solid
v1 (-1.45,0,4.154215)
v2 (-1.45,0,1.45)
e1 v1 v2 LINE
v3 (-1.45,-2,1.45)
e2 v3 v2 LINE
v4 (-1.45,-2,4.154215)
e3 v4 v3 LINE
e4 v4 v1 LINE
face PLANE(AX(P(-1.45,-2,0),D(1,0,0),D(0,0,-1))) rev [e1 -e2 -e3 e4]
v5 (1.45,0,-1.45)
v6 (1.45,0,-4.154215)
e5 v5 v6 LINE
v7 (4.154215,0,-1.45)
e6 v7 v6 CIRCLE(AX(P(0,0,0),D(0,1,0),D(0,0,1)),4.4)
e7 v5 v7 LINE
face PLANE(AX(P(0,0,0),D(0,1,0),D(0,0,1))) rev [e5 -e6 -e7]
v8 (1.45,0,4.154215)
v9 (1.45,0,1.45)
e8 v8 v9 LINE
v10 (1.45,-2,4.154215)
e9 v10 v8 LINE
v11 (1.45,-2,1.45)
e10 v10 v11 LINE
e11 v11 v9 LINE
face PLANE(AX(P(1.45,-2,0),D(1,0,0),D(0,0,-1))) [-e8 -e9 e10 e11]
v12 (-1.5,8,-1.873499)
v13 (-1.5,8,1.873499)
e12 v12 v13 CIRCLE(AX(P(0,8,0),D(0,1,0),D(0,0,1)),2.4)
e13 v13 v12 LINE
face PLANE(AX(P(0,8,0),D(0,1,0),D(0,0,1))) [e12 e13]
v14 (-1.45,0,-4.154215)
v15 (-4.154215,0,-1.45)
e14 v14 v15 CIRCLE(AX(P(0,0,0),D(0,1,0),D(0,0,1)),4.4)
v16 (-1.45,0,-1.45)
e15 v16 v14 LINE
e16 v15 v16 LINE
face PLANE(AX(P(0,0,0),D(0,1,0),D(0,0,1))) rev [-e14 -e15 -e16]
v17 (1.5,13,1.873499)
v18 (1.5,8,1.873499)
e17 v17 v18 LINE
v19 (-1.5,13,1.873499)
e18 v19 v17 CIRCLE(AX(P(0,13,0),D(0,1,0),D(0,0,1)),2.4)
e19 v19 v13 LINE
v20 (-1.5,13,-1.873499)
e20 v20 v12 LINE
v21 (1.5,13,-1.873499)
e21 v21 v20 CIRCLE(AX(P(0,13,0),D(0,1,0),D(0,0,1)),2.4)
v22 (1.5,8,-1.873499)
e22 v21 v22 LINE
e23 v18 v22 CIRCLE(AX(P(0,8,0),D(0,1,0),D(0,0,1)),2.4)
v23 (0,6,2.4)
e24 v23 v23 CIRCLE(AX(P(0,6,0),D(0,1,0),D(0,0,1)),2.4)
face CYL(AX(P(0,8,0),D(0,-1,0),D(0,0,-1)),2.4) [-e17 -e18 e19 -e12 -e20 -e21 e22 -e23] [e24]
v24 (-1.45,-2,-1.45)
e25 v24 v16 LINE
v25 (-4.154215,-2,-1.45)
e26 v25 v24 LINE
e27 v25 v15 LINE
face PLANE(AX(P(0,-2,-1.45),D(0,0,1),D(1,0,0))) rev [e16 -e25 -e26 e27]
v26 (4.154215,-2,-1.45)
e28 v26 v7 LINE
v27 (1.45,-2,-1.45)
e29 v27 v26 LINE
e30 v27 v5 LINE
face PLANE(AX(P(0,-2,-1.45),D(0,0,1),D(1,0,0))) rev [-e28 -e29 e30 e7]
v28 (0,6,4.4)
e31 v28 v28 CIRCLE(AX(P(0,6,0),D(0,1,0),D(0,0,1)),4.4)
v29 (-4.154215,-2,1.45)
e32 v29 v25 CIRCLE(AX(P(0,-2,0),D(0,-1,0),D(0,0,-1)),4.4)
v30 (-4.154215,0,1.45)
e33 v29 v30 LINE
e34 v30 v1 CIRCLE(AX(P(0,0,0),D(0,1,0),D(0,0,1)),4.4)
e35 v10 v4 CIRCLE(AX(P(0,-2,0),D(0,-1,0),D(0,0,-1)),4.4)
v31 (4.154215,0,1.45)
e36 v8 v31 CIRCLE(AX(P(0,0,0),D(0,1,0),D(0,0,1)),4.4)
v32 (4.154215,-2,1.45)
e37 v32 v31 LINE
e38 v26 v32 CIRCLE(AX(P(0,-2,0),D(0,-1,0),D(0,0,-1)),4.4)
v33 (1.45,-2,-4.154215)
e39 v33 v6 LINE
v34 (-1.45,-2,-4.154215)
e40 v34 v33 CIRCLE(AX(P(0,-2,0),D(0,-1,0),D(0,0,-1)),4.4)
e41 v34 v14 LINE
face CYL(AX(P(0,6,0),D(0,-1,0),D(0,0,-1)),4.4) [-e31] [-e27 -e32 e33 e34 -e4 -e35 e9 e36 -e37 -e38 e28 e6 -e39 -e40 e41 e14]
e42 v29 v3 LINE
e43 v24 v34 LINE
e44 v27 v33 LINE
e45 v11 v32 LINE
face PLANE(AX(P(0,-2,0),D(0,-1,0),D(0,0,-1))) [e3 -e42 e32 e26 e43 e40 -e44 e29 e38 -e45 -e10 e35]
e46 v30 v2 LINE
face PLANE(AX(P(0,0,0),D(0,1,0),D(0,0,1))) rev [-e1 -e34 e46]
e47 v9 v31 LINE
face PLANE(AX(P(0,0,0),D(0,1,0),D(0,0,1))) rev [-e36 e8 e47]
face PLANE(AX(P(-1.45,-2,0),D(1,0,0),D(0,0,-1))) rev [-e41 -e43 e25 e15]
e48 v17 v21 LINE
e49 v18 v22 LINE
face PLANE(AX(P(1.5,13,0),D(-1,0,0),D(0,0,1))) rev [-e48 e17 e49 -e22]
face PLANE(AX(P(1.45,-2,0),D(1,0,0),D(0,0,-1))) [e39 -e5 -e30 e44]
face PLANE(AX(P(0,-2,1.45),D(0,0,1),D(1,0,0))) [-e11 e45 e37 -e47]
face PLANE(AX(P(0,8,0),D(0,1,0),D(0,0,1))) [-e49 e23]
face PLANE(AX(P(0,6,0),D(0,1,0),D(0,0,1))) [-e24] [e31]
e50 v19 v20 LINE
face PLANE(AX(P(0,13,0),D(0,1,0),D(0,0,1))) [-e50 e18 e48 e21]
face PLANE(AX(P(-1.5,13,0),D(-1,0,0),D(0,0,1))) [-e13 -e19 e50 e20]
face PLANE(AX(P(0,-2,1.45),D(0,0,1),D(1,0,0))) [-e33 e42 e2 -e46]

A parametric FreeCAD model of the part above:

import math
import FreeCAD as App
import Part
import Sketcher
Q = App.Units.Quantity


def add_polygon(sketch, points):
    """Adds a closed chain of lines whose ends are joined by coincident constraints."""
    first, n = sketch.GeometryCount, len(points)
    for a, b in zip(points, points[1:] + points[:1]):
        sketch.addGeometry(Part.LineSegment(App.Vector(*a, 0), App.Vector(*b, 0)), False)
    for i in range(n):
        sketch.addConstraint(Sketcher.Constraint("Coincident", first + i, 2, first + (i + 1) % n, 1))

doc = App.newDocument("Part")
params = doc.addObject("Spreadsheet::Sheet", "Params")
for row, (alias, value) in enumerate([
    ("sketch1_diameter", "8.8 mm"),
    ("pad1_length", "6 mm"),
    ("sketch2_diameter", "4.8 mm"),
    ("pad2_length", "2 mm"),
    ("sketch3_radius", "2.4 mm"),
    ("pad3_length", "5 mm"),
    ("sketch4_radius", "4.4 mm"),
    ("sketch4_width", "2.9 mm"),
    ("pad4_length", "2 mm"),
], start=1):
    params.set(f"A{row}", alias)
    params.set(f"B{row}", "=" + value)
    params.setAlias(f"B{row}", alias)

body = doc.addObject("PartDesign::Body", "Body")

# Sketch on XZ plane
sketch1 = body.newObject("Sketcher::SketchObject", "Sketch")
sketch1.AttachmentSupport = (doc.getObject("XZ_Plane"), [""])
sketch1.MapMode = "FlatFace"
sketch1.addGeometry(Part.Circle(App.Vector(0, 0, 0), App.Vector(0, 0, 1), 4.4), False)
sketch1.addConstraint([
    Sketcher.Constraint("Coincident", 0, 3, -1, 1),
    Sketcher.Constraint("Diameter", 0, Q("8.8 mm")),
])
sketch1.setExpression("Constraints[1]", "Params.sketch1_diameter")
pad1 = body.newObject("PartDesign::Pad", "Pad")
pad1.Profile = sketch1
pad1.setExpression("Length", "Params.pad1_length")
pad1.Reversed = True

# Sketch on XZ plane
sketch2 = body.newObject("Sketcher::SketchObject", "Sketch001")
sketch2.AttachmentSupport = (doc.getObject("XZ_Plane"), [""])
sketch2.MapMode = "FlatFace"
sketch2.AttachmentOffset = App.Placement(App.Vector(0, 0, -6), App.Rotation())
sketch2.addGeometry(Part.Circle(App.Vector(0, 0, 0), App.Vector(0, 0, 1), 2.4), False)
sketch2.addConstraint([
    Sketcher.Constraint("Coincident", 0, 3, -1, 1),
    Sketcher.Constraint("Diameter", 0, Q("4.8 mm")),
])
sketch2.setExpression("Constraints[1]", "Params.sketch2_diameter")
pad2 = body.newObject("PartDesign::Pad", "Pad001")
pad2.Profile = sketch2
pad2.setExpression("Length", "Params.pad2_length")
pad2.Reversed = True

# Sketch on XZ plane
sketch3 = body.newObject("Sketcher::SketchObject", "Sketch002")
sketch3.AttachmentSupport = (doc.getObject("XZ_Plane"), [""])
sketch3.MapMode = "FlatFace"
sketch3.AttachmentOffset = App.Placement(App.Vector(0, 0, -8), App.Rotation())
sketch3.addGeometry([
    Part.LineSegment(App.Vector(-1.5, -1.873499, 0), App.Vector(-1.5, 1.873499, 0)),
    Part.ArcOfCircle(Part.Circle(App.Vector(0, 0, 0), App.Vector(0, 0, 1), 2.4), math.radians(51.317813), math.radians(128.682187)),
    Part.LineSegment(App.Vector(1.5, 1.873499, 0), App.Vector(1.5, -1.873499, 0)),
    Part.ArcOfCircle(Part.Circle(App.Vector(0, 0, 0), App.Vector(0, 0, 1), 2.4), math.radians(-128.682187), math.radians(-51.317813)),
], False)
sketch3.addConstraint([
    Sketcher.Constraint("Coincident", 0, 2, 1, 2),
    Sketcher.Constraint("Coincident", 1, 1, 2, 1),
    Sketcher.Constraint("Coincident", 2, 2, 3, 2),
    Sketcher.Constraint("Coincident", 3, 1, 0, 1),
    Sketcher.Constraint("Vertical", 0),
    Sketcher.Constraint("Vertical", 2),
    Sketcher.Constraint("Coincident", 1, 3, -1, 1),
    Sketcher.Constraint("Coincident", 3, 3, -1, 1),
    Sketcher.Constraint("Equal", 1, 3),
    Sketcher.Constraint("Horizontal", 0, 2, 1, 1),
    Sketcher.Constraint("Radius", 1, Q("2.4 mm")),
    Sketcher.Constraint("DistanceX", 0, 2, 1, 1, Q("3 mm")),
])
sketch3.setExpression("Constraints[10]", "Params.sketch3_radius")
pad3 = body.newObject("PartDesign::Pad", "Pad002")
pad3.Profile = sketch3
pad3.setExpression("Length", "Params.pad3_length")
pad3.Reversed = True

# Sketch on XZ plane
sketch4 = body.newObject("Sketcher::SketchObject", "Sketch003")
sketch4.AttachmentSupport = (doc.getObject("XZ_Plane"), [""])
sketch4.MapMode = "FlatFace"
sketch4.AttachmentOffset = App.Placement(App.Vector(0, 0, 2), App.Rotation())
sketch4.addGeometry(Part.LineSegment(App.Vector(1.45, -1.45, 0), App.Vector(-1.45, -1.45, 0)), False)  # 0
sketch4.addGeometry(Part.LineSegment(App.Vector(-1.45, -1.45, 0), App.Vector(-1.45, -4.154215, 0)), False)  # 1
sketch4.addGeometry(Part.ArcOfCircle(Part.Circle(App.Vector(0, 0, 0), App.Vector(0, 0, 1), 4.4), math.radians(-109.241189), math.radians(-70.758811)), False)  # 2
sketch4.addGeometry(Part.LineSegment(App.Vector(1.45, -4.154215, 0), App.Vector(1.45, -1.45, 0)), False)  # 3
add_polygon(sketch4, [(-1.45, 1.45), (-1.45, -1.45), (1.45, -1.45), (1.45, 1.45)])  # lines 4-7
sketch4.addGeometry(Part.LineSegment(App.Vector(4.154215, 1.45, 0), App.Vector(1.45, 1.45, 0)), False)  # 8
sketch4.addGeometry(Part.LineSegment(App.Vector(1.45, 1.45, 0), App.Vector(1.45, -1.45, 0)), False)  # 9
sketch4.addGeometry(Part.LineSegment(App.Vector(1.45, -1.45, 0), App.Vector(4.154215, -1.45, 0)), False)  # 10
sketch4.addGeometry(Part.ArcOfCircle(Part.Circle(App.Vector(0, 0, 0), App.Vector(0, 0, 1), 4.4), math.radians(-19.241189), math.radians(0)), False)  # 11
sketch4.addGeometry(Part.ArcOfCircle(Part.Circle(App.Vector(0, 0, 0), App.Vector(0, 0, 1), 4.4), math.radians(0), math.radians(19.241189)), False)  # 12
sketch4.addGeometry(Part.LineSegment(App.Vector(-1.45, 1.45, 0), App.Vector(-4.154215, 1.45, 0)), False)  # 13
sketch4.addGeometry(Part.ArcOfCircle(Part.Circle(App.Vector(0, 0, 0), App.Vector(0, 0, 1), 4.4), math.radians(160.758811), math.radians(199.241189)), False)  # 14
sketch4.addGeometry(Part.LineSegment(App.Vector(-4.154215, -1.45, 0), App.Vector(-1.45, -1.45, 0)), False)  # 15
sketch4.addGeometry(Part.LineSegment(App.Vector(-1.45, -1.45, 0), App.Vector(-1.45, 1.45, 0)), False)  # 16
sketch4.addGeometry(Part.LineSegment(App.Vector(-1.45, 4.154215, 0), App.Vector(-1.45, 1.45, 0)), False)  # 17
sketch4.addGeometry(Part.LineSegment(App.Vector(-1.45, 1.45, 0), App.Vector(1.45, 1.45, 0)), False)  # 18
sketch4.addGeometry(Part.LineSegment(App.Vector(1.45, 1.45, 0), App.Vector(1.45, 4.154215, 0)), False)  # 19
sketch4.addGeometry(Part.ArcOfCircle(Part.Circle(App.Vector(0, 0, 0), App.Vector(0, 0, 1), 4.4), math.radians(70.758811), math.radians(109.241189)), False)  # 20
sketch4.addConstraint([
    Sketcher.Constraint("Coincident", 0, 2, 1, 1),
    Sketcher.Constraint("Coincident", 1, 2, 2, 1),
    Sketcher.Constraint("Coincident", 2, 2, 3, 1),
    Sketcher.Constraint("Coincident", 3, 2, 0, 1),
    Sketcher.Constraint("Coincident", 8, 2, 9, 1),
    Sketcher.Constraint("Coincident", 9, 2, 10, 1),
    Sketcher.Constraint("Coincident", 10, 2, 11, 1),
    Sketcher.Constraint("Tangent", 11, 2, 12, 1),
    Sketcher.Constraint("Coincident", 12, 2, 8, 1),
    Sketcher.Constraint("Coincident", 13, 2, 14, 1),
    Sketcher.Constraint("Coincident", 14, 2, 15, 1),
    Sketcher.Constraint("Coincident", 15, 2, 16, 1),
    Sketcher.Constraint("Coincident", 16, 2, 13, 1),
    Sketcher.Constraint("Coincident", 17, 2, 18, 1),
    Sketcher.Constraint("Coincident", 18, 2, 19, 1),
    Sketcher.Constraint("Coincident", 19, 2, 20, 1),
    Sketcher.Constraint("Coincident", 20, 2, 17, 1),
    Sketcher.Constraint("Horizontal", 0),
    Sketcher.Constraint("Vertical", 1),
    Sketcher.Constraint("Vertical", 3),
    Sketcher.Constraint("Vertical", 4),
    Sketcher.Constraint("Horizontal", 5),
    Sketcher.Constraint("Vertical", 6),
    Sketcher.Constraint("Horizontal", 7),
    Sketcher.Constraint("Horizontal", 8),
    Sketcher.Constraint("Vertical", 9),
    Sketcher.Constraint("Horizontal", 10),
    Sketcher.Constraint("Horizontal", 13),
    Sketcher.Constraint("Horizontal", 15),
    Sketcher.Constraint("Vertical", 16),
    Sketcher.Constraint("Vertical", 17),
    Sketcher.Constraint("Horizontal", 18),
    Sketcher.Constraint("Vertical", 19),
    Sketcher.Constraint("Coincident", 2, 3, -1, 1),
    Sketcher.Constraint("Coincident", 11, 3, -1, 1),
    Sketcher.Constraint("Coincident", 14, 3, -1, 1),
    Sketcher.Constraint("Coincident", 20, 3, -1, 1),
    Sketcher.Constraint("Coincident", 4, 2, 0, 2),
    Sketcher.Constraint("Coincident", 8, 2, 6, 2),
    Sketcher.Constraint("Coincident", 9, 2, 3, 2),
    Sketcher.Constraint("Coincident", 15, 2, 0, 2),
    Sketcher.Constraint("Coincident", 17, 2, 7, 2),
    Sketcher.Constraint("Equal", 2, 11),
    Sketcher.Constraint("Equal", 11, 12),
    Sketcher.Constraint("Equal", 12, 14),
    Sketcher.Constraint("Equal", 14, 20),
    Sketcher.Constraint("Symmetric", 0, 2, 6, 2, -1, 1),
    Sketcher.Constraint("PointOnObject", 11, 2, -1),
    Sketcher.Constraint("Horizontal", 12, 2, 13, 2),
    Sketcher.Constraint("Horizontal", 19, 2, 20, 2),
    Sketcher.Constraint("Equal", 15, 1),
    Sketcher.Constraint("Radius", 2, Q("4.4 mm")),
    Sketcher.Constraint("DistanceX", 0, 2, 0, 1, Q("2.9 mm")),
])
sketch4.setExpression("Constraints[55]", "Params.sketch4_radius")
sketch4.setExpression("Constraints[56]", "Params.sketch4_width")
pad4 = body.newObject("PartDesign::Pad", "Pad003")
pad4.Profile = sketch4
pad4.setExpression("Length", "Params.pad4_length")
pad4.Reversed = True

doc.recompute()
